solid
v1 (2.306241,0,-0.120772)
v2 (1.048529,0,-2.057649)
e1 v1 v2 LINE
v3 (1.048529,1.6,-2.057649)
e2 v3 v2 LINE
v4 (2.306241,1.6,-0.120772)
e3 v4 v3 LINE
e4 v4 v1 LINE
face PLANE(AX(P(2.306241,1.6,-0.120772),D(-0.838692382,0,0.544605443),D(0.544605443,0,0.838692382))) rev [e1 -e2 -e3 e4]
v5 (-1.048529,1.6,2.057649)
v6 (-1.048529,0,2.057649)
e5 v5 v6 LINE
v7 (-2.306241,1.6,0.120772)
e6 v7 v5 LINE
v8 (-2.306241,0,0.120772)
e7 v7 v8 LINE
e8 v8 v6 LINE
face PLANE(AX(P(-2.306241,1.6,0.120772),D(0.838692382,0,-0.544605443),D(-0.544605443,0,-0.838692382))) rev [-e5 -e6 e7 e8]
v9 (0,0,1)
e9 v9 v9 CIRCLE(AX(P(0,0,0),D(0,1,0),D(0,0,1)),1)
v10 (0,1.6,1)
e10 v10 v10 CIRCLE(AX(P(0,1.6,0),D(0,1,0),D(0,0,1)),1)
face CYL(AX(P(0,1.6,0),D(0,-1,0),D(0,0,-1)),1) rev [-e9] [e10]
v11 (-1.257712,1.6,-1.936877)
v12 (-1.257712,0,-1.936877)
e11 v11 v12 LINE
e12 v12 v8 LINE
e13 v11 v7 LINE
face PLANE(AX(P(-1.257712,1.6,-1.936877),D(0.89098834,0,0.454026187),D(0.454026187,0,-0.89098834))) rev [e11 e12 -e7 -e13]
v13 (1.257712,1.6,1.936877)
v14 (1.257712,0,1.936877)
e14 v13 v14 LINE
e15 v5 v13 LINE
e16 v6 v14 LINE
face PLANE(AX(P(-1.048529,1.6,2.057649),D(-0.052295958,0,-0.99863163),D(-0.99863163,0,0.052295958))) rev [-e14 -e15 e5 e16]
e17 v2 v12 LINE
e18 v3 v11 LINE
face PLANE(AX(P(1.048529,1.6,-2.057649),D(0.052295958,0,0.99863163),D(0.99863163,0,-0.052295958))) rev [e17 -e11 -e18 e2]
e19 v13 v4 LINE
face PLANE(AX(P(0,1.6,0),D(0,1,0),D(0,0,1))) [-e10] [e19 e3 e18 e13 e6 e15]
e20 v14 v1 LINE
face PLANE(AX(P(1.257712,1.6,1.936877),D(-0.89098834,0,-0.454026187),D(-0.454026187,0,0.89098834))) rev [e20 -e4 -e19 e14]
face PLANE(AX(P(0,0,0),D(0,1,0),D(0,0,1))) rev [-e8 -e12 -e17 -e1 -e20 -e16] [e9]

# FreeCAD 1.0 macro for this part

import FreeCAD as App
import Part
import Sketcher
from FreeCAD import Vector
Q = App.Units.Quantity


def add_polygon(sketch, points):
    """Adds a closed chain of lines whose ends are joined by coincident constraints."""
    first, n = sketch.GeometryCount, len(points)
    for a, b in zip(points, points[1:] + points[:1]):
        sketch.addGeometry(Part.LineSegment(App.Vector(*a, 0), App.Vector(*b, 0)), False)
    for i in range(n):
        sketch.addConstraint(Sketcher.Constraint("Coincident", first + i, 2, first + (i + 1) % n, 1))

doc = App.newDocument("Part")
params = doc.addObject("Spreadsheet::Sheet", "Params")
for row, (alias, value) in enumerate([
    ("sketch1_diameter", "2 mm"),
    ("pad1_length", "1.6 mm"),
], start=1):
    params.set(f"A{row}", alias)
    params.set(f"B{row}", "=" + value)
    params.setAlias(f"B{row}", alias)

body = doc.addObject("PartDesign::Body", "Body")

sketch1 = body.newObject("Sketcher::SketchObject", "Sketch")
sketch1.AttachmentSupport = (doc.getObject("XZ_Plane"), [""])
sketch1.MapMode = "FlatFace"
add_polygon(sketch1, [(1.3, 1.9), (2.3, -0.1), (1, -2.1), (-1.3, -1.9), (-2.3, 0.1), (-1, 2.1)])
sketch1.addGeometry(Part.Circle(Vector(0, 0, 0), Vector(0, 0, 1), 1), False)
sketch1.addConstraint(Sketcher.Constraint("Coincident", 6, 3, -1, 1))
sketch1.addConstraint(Sketcher.Constraint("Symmetric", 0, 2, 3, 2, -1, 1))
sketch1.addConstraint(Sketcher.Constraint("Symmetric", 1, 2, 4, 2, -1, 1))
sketch1.addConstraint(Sketcher.Constraint("Symmetric", 2, 2, 5, 2, -1, 1))
sketch1.addConstraint(Sketcher.Constraint("Equal", 0, 1))
sketch1.addConstraint(Sketcher.Constraint("Equal", 1, 2))
sketch1.addConstraint(Sketcher.Constraint("Diameter", 6, Q("2 mm")))
sketch1.addConstraint(Sketcher.Constraint("Distance", 0, Q("2.309401 mm")))
sketch1.addConstraint(Sketcher.Constraint("DistanceY", 1, 2, 4, 2, Q("4.115299 mm")))
sketch1.addConstraint(Sketcher.Constraint("DistanceX", -1, 1, 0, 2, Q("2.306241 mm")))
sketch1.addConstraint(Sketcher.Constraint("DistanceX", -1, 1, 1, 2, Q("1.048529 mm")))
sketch1.setExpression("Constraints[12]", "Params.sketch1_diameter")
pad1 = body.newObject("PartDesign::Pad", "Pad")
pad1.Profile = sketch1
pad1.setExpression("Length", "Params.pad1_length")
pad1.Reversed = True

doc.recompute()
